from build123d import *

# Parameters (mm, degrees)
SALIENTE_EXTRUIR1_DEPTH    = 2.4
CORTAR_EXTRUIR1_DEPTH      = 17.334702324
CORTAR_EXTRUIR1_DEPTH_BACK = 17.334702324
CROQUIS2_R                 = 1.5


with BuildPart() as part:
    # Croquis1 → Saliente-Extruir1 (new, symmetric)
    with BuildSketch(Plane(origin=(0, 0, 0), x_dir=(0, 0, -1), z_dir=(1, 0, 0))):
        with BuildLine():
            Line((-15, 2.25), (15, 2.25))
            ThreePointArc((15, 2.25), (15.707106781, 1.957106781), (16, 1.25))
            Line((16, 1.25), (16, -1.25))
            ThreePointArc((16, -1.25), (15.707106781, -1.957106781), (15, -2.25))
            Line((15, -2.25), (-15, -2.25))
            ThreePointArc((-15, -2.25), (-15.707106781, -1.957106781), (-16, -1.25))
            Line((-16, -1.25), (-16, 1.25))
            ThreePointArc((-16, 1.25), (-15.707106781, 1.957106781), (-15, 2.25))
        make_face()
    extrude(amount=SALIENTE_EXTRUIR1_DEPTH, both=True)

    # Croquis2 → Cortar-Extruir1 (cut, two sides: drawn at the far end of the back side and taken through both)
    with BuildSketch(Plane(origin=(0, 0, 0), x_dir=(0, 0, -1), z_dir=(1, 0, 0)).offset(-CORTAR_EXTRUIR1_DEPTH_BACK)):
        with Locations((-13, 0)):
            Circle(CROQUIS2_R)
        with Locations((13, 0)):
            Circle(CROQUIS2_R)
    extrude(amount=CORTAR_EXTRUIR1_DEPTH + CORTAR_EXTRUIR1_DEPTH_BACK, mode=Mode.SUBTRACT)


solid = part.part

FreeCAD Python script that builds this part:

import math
import FreeCAD as App
import Part
import Sketcher
from FreeCAD import Vector

doc = App.newDocument("Part")
body = doc.addObject("PartDesign::Body", "Body")

sketch1 = body.newObject("Sketcher::SketchObject", "Sketch")
sketch1.AttachmentSupport = (doc.getObject("YZ_Plane"), [""])
sketch1.MapMode = "FlatFace"
sketch1.addGeometry(Part.LineSegment(Vector(2.2, -15, 0), Vector(2.2, 15, 0)), False)
sketch1.addGeometry(Part.ArcOfCircle(Part.Circle(Vector(1.2, 15, 0), Vector(0, 0, 1), 1), math.radians(0), math.radians(90)), False)
sketch1.addGeometry(Part.LineSegment(Vector(1.2, 16, 0), Vector(-1.2, 16, 0)), False)
sketch1.addGeometry(Part.ArcOfCircle(Part.Circle(Vector(-1.2, 15, 0), Vector(0, 0, 1), 1), math.radians(90), math.radians(180)), False)
sketch1.addGeometry(Part.LineSegment(Vector(-2.2, 15, 0), Vector(-2.2, -15, 0)), False)
sketch1.addGeometry(Part.ArcOfCircle(Part.Circle(Vector(-1.2, -15, 0), Vector(0, 0, 1), 1), math.radians(-180), math.radians(-90)), False)
sketch1.addGeometry(Part.LineSegment(Vector(-1.2, -16, 0), Vector(1.2, -16, 0)), False)
sketch1.addGeometry(Part.ArcOfCircle(Part.Circle(Vector(1.2, -15, 0), Vector(0, 0, 1), 1), math.radians(-90), math.radians(0)), False)
sketch1.addConstraint(Sketcher.Constraint("Tangent", 0, 2, 1, 1))
sketch1.addConstraint(Sketcher.Constraint("Tangent", 1, 2, 2, 1))
sketch1.addConstraint(Sketcher.Constraint("Tangent", 2, 2, 3, 1))
sketch1.addConstraint(Sketcher.Constraint("Tangent", 3, 2, 4, 1))
sketch1.addConstraint(Sketcher.Constraint("Tangent", 4, 2, 5, 1))
sketch1.addConstraint(Sketcher.Constraint("Tangent", 5, 2, 6, 1))
sketch1.addConstraint(Sketcher.Constraint("Tangent", 6, 2, 7, 1))
sketch1.addConstraint(Sketcher.Constraint("Tangent", 7, 2, 0, 1))
sketch1.addConstraint(Sketcher.Constraint("Vertical", 0))
sketch1.addConstraint(Sketcher.Constraint("Horizontal", 2))
sketch1.addConstraint(Sketcher.Constraint("Vertical", 4))
sketch1.addConstraint(Sketcher.Constraint("Horizontal", 6))
sketch1.addConstraint(Sketcher.Constraint("Equal", 1, 3))
sketch1.addConstraint(Sketcher.Constraint("Equal", 3, 5))
sketch1.addConstraint(Sketcher.Constraint("Equal", 5, 7))
sketch1.addConstraint(Sketcher.Constraint("Symmetric", 1, 3, 5, 3, -1, 1))
sketch1.addConstraint(Sketcher.Constraint("Radius", 1, 1.0))
sketch1.addConstraint(Sketcher.Constraint("DistanceY", 0, 1, 0, 2, 30.0))
sketch1.addConstraint(Sketcher.Constraint("DistanceX", 2, 2, 2, 1, 2.5))
pad1 = body.newObject("PartDesign::Pad", "Pad")
pad1.Profile = sketch1
pad1.Length = 4.8
pad1.Midplane = True

sketch2 = body.newObject("Sketcher::SketchObject", "Sketch001")
sketch2.AttachmentSupport = (doc.getObject("YZ_Plane"), [""])
sketch2.MapMode = "FlatFace"
sketch2.addGeometry(Part.Circle(Vector(0, 13, 0), Vector(0, 0, 1), 1.5), False)
sketch2.addGeometry(Part.Circle(Vector(0, -13, 0), Vector(0, 0, 1), 1.5), False)
sketch2.addConstraint(Sketcher.Constraint("Equal", 0, 1))
sketch2.addConstraint(Sketcher.Constraint("Symmetric", 0, 3, 1, 3, -1, 1))
sketch2.addConstraint(Sketcher.Constraint("PointOnObject", 0, 3, -2))
sketch2.addConstraint(Sketcher.Constraint("Diameter", 0, 3.0))
sketch2.addConstraint(Sketcher.Constraint("DistanceY", -1, 1, 0, 3, 13.0))
pocket1 = body.newObject("PartDesign::Pocket", "Pocket")
pocket1.Profile = sketch2
pocket1.Type = "ThroughAll"
pocket1.Midplane = True

doc.recompute()
